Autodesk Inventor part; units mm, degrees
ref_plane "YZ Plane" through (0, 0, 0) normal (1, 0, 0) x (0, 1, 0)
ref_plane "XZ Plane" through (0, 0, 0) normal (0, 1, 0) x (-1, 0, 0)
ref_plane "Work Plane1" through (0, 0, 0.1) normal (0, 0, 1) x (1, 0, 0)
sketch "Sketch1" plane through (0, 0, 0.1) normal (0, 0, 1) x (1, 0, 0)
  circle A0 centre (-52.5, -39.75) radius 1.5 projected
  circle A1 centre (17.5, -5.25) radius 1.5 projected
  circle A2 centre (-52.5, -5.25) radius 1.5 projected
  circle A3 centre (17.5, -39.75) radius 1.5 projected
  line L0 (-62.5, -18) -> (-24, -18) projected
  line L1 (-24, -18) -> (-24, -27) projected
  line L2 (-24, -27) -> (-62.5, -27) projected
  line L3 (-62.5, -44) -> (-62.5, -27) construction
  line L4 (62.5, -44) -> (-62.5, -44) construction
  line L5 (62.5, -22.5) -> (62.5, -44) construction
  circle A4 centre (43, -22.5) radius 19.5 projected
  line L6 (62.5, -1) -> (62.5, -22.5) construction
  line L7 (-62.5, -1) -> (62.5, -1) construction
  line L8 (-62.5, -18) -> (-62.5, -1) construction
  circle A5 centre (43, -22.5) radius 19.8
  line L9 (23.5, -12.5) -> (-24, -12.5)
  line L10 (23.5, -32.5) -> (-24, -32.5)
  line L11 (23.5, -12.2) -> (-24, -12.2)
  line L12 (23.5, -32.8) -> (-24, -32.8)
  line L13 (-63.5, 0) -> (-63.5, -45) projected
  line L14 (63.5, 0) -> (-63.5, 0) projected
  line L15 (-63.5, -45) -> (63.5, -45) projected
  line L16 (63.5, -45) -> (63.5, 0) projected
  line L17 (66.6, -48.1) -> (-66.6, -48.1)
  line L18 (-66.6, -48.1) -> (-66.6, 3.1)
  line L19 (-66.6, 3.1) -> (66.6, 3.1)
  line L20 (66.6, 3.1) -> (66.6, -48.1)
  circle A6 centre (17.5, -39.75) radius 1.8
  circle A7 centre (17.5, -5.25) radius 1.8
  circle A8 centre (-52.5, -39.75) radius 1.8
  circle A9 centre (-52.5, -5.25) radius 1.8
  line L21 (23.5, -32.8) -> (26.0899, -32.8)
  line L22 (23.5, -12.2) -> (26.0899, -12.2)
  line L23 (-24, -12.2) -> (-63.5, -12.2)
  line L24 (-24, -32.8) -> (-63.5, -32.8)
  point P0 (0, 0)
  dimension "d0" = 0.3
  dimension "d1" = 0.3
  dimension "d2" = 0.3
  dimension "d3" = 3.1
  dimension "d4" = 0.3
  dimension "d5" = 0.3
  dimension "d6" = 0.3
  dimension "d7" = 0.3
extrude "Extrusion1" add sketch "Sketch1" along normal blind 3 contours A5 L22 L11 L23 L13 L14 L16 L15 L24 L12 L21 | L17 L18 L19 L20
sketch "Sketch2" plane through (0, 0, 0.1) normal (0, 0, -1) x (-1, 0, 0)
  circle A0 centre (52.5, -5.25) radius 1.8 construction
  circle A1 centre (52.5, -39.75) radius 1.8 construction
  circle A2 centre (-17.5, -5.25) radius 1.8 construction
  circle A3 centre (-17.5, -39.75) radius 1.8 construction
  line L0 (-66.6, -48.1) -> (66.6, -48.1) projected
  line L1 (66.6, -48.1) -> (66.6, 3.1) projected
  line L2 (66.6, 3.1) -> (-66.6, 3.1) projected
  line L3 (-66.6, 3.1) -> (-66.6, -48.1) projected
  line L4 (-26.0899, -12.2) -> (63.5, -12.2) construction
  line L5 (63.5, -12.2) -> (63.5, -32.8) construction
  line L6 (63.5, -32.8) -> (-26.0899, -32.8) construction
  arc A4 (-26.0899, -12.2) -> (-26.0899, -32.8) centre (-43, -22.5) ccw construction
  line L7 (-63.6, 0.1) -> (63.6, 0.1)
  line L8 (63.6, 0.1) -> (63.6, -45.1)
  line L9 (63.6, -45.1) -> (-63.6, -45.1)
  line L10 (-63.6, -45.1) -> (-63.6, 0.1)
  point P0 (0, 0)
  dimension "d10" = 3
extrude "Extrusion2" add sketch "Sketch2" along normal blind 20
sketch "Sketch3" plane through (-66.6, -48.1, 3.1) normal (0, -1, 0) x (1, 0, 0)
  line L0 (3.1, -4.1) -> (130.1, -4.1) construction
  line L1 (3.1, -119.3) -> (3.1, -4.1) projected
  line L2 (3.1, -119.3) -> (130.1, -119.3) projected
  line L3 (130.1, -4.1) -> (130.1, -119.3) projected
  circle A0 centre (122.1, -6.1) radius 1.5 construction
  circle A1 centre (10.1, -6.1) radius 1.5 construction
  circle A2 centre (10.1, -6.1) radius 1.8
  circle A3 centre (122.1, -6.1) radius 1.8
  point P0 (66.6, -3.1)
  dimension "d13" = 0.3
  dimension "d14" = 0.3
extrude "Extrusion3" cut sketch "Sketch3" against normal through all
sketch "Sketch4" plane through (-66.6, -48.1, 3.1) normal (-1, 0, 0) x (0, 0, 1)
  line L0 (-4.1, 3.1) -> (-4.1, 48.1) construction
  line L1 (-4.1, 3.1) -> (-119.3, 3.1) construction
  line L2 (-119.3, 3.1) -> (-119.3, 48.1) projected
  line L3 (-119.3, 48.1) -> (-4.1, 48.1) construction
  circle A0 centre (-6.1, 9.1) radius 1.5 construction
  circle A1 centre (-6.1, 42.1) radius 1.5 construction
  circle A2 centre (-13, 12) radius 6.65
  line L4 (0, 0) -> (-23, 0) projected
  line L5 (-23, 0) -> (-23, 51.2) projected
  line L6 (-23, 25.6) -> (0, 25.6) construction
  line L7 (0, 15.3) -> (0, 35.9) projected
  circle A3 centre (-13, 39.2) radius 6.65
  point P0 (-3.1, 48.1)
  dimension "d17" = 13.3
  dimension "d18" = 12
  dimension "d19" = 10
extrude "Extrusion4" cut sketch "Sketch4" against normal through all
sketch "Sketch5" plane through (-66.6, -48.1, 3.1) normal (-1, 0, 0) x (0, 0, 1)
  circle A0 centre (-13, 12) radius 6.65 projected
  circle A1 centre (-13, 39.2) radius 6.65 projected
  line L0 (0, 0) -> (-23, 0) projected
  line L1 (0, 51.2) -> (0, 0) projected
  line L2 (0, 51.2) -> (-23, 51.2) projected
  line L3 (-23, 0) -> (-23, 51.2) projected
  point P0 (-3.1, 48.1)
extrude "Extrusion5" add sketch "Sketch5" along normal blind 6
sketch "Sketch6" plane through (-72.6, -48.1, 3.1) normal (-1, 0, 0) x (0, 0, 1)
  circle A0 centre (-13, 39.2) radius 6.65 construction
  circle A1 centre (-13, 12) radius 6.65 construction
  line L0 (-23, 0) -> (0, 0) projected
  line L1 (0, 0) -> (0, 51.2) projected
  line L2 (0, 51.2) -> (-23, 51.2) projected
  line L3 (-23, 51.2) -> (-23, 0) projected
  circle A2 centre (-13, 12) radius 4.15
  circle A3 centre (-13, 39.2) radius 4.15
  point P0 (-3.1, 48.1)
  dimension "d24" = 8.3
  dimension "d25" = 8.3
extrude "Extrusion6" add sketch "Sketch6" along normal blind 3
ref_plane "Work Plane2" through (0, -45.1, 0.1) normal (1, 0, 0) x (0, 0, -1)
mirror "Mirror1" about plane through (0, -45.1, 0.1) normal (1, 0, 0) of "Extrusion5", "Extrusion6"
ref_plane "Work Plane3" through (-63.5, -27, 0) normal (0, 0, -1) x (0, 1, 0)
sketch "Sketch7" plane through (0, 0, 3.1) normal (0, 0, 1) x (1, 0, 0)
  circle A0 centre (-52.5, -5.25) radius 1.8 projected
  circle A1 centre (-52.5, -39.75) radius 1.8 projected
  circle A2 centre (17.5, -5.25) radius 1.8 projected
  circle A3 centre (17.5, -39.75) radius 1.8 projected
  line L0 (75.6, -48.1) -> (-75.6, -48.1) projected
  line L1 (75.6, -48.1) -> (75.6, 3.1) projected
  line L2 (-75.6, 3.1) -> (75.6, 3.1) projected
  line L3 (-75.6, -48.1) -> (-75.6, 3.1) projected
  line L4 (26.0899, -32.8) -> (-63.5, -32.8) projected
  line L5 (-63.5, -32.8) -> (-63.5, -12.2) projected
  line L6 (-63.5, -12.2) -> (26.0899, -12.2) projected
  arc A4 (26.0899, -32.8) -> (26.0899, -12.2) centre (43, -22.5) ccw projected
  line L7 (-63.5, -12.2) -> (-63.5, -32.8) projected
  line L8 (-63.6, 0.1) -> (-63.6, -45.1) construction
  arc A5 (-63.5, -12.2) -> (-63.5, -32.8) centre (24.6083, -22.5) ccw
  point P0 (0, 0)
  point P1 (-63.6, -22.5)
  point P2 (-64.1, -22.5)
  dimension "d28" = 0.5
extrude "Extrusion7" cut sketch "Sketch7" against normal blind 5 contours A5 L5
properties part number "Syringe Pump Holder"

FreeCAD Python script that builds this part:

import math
import FreeCAD as App
import Part
import Sketcher
from FreeCAD import Vector

doc = App.newDocument("Part")
body = doc.addObject("PartDesign::Body", "Body")

sketch1 = body.newObject("Sketcher::SketchObject", "Sketch")
sketch1.AttachmentSupport = (doc.getObject("XY_Plane"), [""])
sketch1.MapMode = "FlatFace"
sketch1.AttachmentOffset = App.Placement(Vector(0, 0, 0.1), App.Rotation())
sketch1.addGeometry(Part.LineSegment(Vector(-66.6, -48.1, 0), Vector(66.6, -48.1, 0)), False)
sketch1.addGeometry(Part.LineSegment(Vector(66.6, -48.1, 0), Vector(66.6, 3.1, 0)), False)
sketch1.addGeometry(Part.LineSegment(Vector(66.6, 3.1, 0), Vector(-66.6, 3.1, 0)), False)
sketch1.addGeometry(Part.LineSegment(Vector(-66.6, 3.1, 0), Vector(-66.6, -48.1, 0)), False)
sketch1.addGeometry(Part.ArcOfCircle(Part.Circle(Vector(43, -22.5, 0), Vector(0, 0, 1), 19.8), math.radians(-148.654262), math.radians(148.654262)), False)
sketch1.addGeometry(Part.LineSegment(Vector(26.0899, -32.8, 0), Vector(-63.5, -32.8, 0)), False)
sketch1.addGeometry(Part.LineSegment(Vector(-63.5, -32.8, 0), Vector(-63.5, -12.2, 0)), False)
sketch1.addGeometry(Part.LineSegment(Vector(-63.5, -12.2, 0), Vector(26.0899, -12.2, 0)), False)
sketch1.addGeometry(Part.Circle(Vector(-52.5, -39.75, 0), Vector(0, 0, 1), 1.8), False)
sketch1.addGeometry(Part.Circle(Vector(17.5, -39.75, 0), Vector(0, 0, 1), 1.8), False)
sketch1.addGeometry(Part.Circle(Vector(-52.5, -5.25, 0), Vector(0, 0, 1), 1.8), False)
sketch1.addGeometry(Part.Circle(Vector(17.5, -5.25, 0), Vector(0, 0, 1), 1.8), False)
sketch1.addConstraint(Sketcher.Constraint("Coincident", 0, 2, 1, 1))
sketch1.addConstraint(Sketcher.Constraint("Coincident", 1, 2, 2, 1))
sketch1.addConstraint(Sketcher.Constraint("Coincident", 2, 2, 3, 1))
sketch1.addConstraint(Sketcher.Constraint("Coincident", 3, 2, 0, 1))
sketch1.addConstraint(Sketcher.Constraint("Coincident", 4, 1, 5, 1))
sketch1.addConstraint(Sketcher.Constraint("Coincident", 5, 2, 6, 1))
sketch1.addConstraint(Sketcher.Constraint("Coincident", 6, 2, 7, 1))
sketch1.addConstraint(Sketcher.Constraint("Coincident", 7, 2, 4, 2))
sketch1.addConstraint(Sketcher.Constraint("Horizontal", 0))
sketch1.addConstraint(Sketcher.Constraint("Vertical", 1))
sketch1.addConstraint(Sketcher.Constraint("Horizontal", 2))
sketch1.addConstraint(Sketcher.Constraint("Vertical", 3))
sketch1.addConstraint(Sketcher.Constraint("Horizontal", 5))
sketch1.addConstraint(Sketcher.Constraint("Vertical", 6))
sketch1.addConstraint(Sketcher.Constraint("Horizontal", 7))
sketch1.addConstraint(Sketcher.Constraint("Equal", 8, 9))
sketch1.addConstraint(Sketcher.Constraint("Equal", 9, 10))
sketch1.addConstraint(Sketcher.Constraint("Equal", 10, 11))
sketch1.addConstraint(Sketcher.Constraint("Horizontal", 8, 3, 9, 3))
sketch1.addConstraint(Sketcher.Constraint("Horizontal", 10, 3, 11, 3))
sketch1.addConstraint(Sketcher.Constraint("Vertical", 8, 3, 10, 3))
sketch1.addConstraint(Sketcher.Constraint("Vertical", 9, 3, 11, 3))
sketch1.addConstraint(Sketcher.Constraint("Vertical", 4, 1, 7, 2))
sketch1.addConstraint(Sketcher.Constraint("Diameter", 8, 3.6))
sketch1.addConstraint(Sketcher.Constraint("DistanceY", -1, 1, 1, 2, 3.1))
sketch1.addConstraint(Sketcher.Constraint("Radius", 4, 19.8))
sketch1.addConstraint(Sketcher.Constraint("DistanceX", 3, 2, 5, 2, 3.1))
sketch1.addConstraint(Sketcher.Constraint("DistanceX", 0, 1, 0, 2, 133.2))
sketch1.addConstraint(Sketcher.Constraint("DistanceY", 1, 1, 1, 2, 51.2))
sketch1.addConstraint(Sketcher.Constraint("DistanceY", 6, 1, 6, 2, 20.6))
sketch1.addConstraint(Sketcher.Constraint("DistanceX", -1, 1, 4, 3, 43.0))
sketch1.addConstraint(Sketcher.Constraint("DistanceX", 8, 3, 9, 3, 70.0))
sketch1.addConstraint(Sketcher.Constraint("DistanceX", 5, 2, 8, 3, 11.0))
sketch1.addConstraint(Sketcher.Constraint("DistanceX", 5, 2, 5, 1, 89.59))
sketch1.addConstraint(Sketcher.Constraint("DistanceY", 4, 3, -1, 1, 22.5))
sketch1.addConstraint(Sketcher.Constraint("DistanceY", 8, 3, 10, 3, 34.5))
sketch1.addConstraint(Sketcher.Constraint("DistanceY", 8, 3, -1, 1, 39.75))
pad1 = body.newObject("PartDesign::Pad", "Pad")
pad1.Profile = sketch1
pad1.Length = 3

sketch2 = body.newObject("Sketcher::SketchObject", "Sketch001")
sketch2.AttachmentSupport = (doc.getObject("XY_Plane"), [""])
sketch2.MapMode = "FlatFace"
sketch2.AttachmentOffset = App.Placement(Vector(0, 0, 0.1), App.Rotation())
sketch2.addGeometry(Part.LineSegment(Vector(66.6, 3.1, 0), Vector(66.6, -48.1, 0)), False)
sketch2.addGeometry(Part.LineSegment(Vector(66.6, -48.1, 0), Vector(-66.6, -48.1, 0)), False)
sketch2.addGeometry(Part.LineSegment(Vector(-66.6, -48.1, 0), Vector(-66.6, 3.1, 0)), False)
sketch2.addGeometry(Part.LineSegment(Vector(-66.6, 3.1, 0), Vector(66.6, 3.1, 0)), False)
sketch2.addGeometry(Part.LineSegment(Vector(63.6, -45.1, 0), Vector(63.6, 0.1, 0)), False)
sketch2.addGeometry(Part.LineSegment(Vector(63.6, 0.1, 0), Vector(-63.6, 0.1, 0)), False)
sketch2.addGeometry(Part.LineSegment(Vector(-63.6, 0.1, 0), Vector(-63.6, -45.1, 0)), False)
sketch2.addGeometry(Part.LineSegment(Vector(-63.6, -45.1, 0), Vector(63.6, -45.1, 0)), False)
sketch2.addConstraint(Sketcher.Constraint("Coincident", 0, 2, 1, 1))
sketch2.addConstraint(Sketcher.Constraint("Coincident", 1, 2, 2, 1))
sketch2.addConstraint(Sketcher.Constraint("Coincident", 2, 2, 3, 1))
sketch2.addConstraint(Sketcher.Constraint("Coincident", 3, 2, 0, 1))
sketch2.addConstraint(Sketcher.Constraint("Coincident", 4, 2, 5, 1))
sketch2.addConstraint(Sketcher.Constraint("Coincident", 5, 2, 6, 1))
sketch2.addConstraint(Sketcher.Constraint("Coincident", 6, 2, 7, 1))
sketch2.addConstraint(Sketcher.Constraint("Coincident", 7, 2, 4, 1))
sketch2.addConstraint(Sketcher.Constraint("Vertical", 0))
sketch2.addConstraint(Sketcher.Constraint("Horizontal", 1))
sketch2.addConstraint(Sketcher.Constraint("Vertical", 2))
sketch2.addConstraint(Sketcher.Constraint("Horizontal", 3))
sketch2.addConstraint(Sketcher.Constraint("Vertical", 4))
sketch2.addConstraint(Sketcher.Constraint("Horizontal", 5))
sketch2.addConstraint(Sketcher.Constraint("Vertical", 6))
sketch2.addConstraint(Sketcher.Constraint("Horizontal", 7))
sketch2.addConstraint(Sketcher.Constraint("DistanceX", 4, 2, 3, 2, 3.0))
sketch2.addConstraint(Sketcher.Constraint("DistanceY", 4, 2, 3, 2, 3.0))
sketch2.addConstraint(Sketcher.Constraint("DistanceX", 2, 2, 5, 2, 3.0))
sketch2.addConstraint(Sketcher.Constraint("DistanceY", 1, 2, 6, 2, 3.0))
sketch2.addConstraint(Sketcher.Constraint("DistanceX", 1, 2, 1, 1, 133.2))
sketch2.addConstraint(Sketcher.Constraint("DistanceY", 0, 2, 0, 1, 51.2))
sketch2.addConstraint(Sketcher.Constraint("DistanceX", -1, 1, 0, 2, 66.6))
sketch2.addConstraint(Sketcher.Constraint("DistanceY", 0, 2, -1, 1, 48.1))
pad2 = body.newObject("PartDesign::Pad", "Pad001")
pad2.Profile = sketch2
pad2.Length = 20
pad2.Reversed = True

sketch3 = body.newObject("Sketcher::SketchObject", "Sketch002")
sketch3.AttachmentSupport = (doc.getObject("XZ_Plane"), [""])
sketch3.MapMode = "FlatFace"
sketch3.AttachmentOffset = App.Placement(Vector(0, 0, 48.1), App.Rotation())
sketch3.addGeometry(Part.Circle(Vector(-56.5, -3, 0), Vector(0, 0, 1), 1.8), False)
sketch3.addGeometry(Part.Circle(Vector(55.5, -3, 0), Vector(0, 0, 1), 1.8), False)
sketch3.addConstraint(Sketcher.Constraint("Equal", 0, 1))
sketch3.addConstraint(Sketcher.Constraint("Horizontal", 0, 3, 1, 3))
sketch3.addConstraint(Sketcher.Constraint("Diameter", 0, 3.6))
sketch3.addConstraint(Sketcher.Constraint("DistanceY", 0, 3, -1, 1, 3.0))
sketch3.addConstraint(Sketcher.Constraint("DistanceX", 0, 3, 1, 3, 112.0))
sketch3.addConstraint(Sketcher.Constraint("DistanceX", 0, 3, -1, 1, 56.5))
pocket1 = body.newObject("PartDesign::Pocket", "Pocket")
pocket1.Profile = sketch3
pocket1.Type = "ThroughAll"

sketch4 = body.newObject("Sketcher::SketchObject", "Sketch003")
sketch4.AttachmentSupport = (doc.getObject("YZ_Plane"), [""])
sketch4.MapMode = "FlatFace"
sketch4.AttachmentOffset = App.Placement(Vector(0, 0, -66.6), App.Rotation())
sketch4.addGeometry(Part.Circle(Vector(-36.1, -9.9, 0), Vector(0, 0, 1), 6.65), False)
sketch4.addGeometry(Part.Circle(Vector(-8.9, -9.9, 0), Vector(0, 0, 1), 6.65), False)
sketch4.addConstraint(Sketcher.Constraint("Equal", 0, 1))
sketch4.addConstraint(Sketcher.Constraint("Horizontal", 0, 3, 1, 3))
sketch4.addConstraint(Sketcher.Constraint("Diameter", 0, 13.3))
sketch4.addConstraint(Sketcher.Constraint("DistanceX", 0, 3, -1, 1, 36.1))
sketch4.addConstraint(Sketcher.Constraint("DistanceY", 0, 3, -1, 1, 9.9))
sketch4.addConstraint(Sketcher.Constraint("DistanceX", 1, 3, -1, 1, 8.9))
pocket2 = body.newObject("PartDesign::Pocket", "Pocket001")
pocket2.Profile = sketch4
pocket2.Type = "ThroughAll"
pocket2.Reversed = True

sketch5 = body.newObject("Sketcher::SketchObject", "Sketch004")
sketch5.AttachmentSupport = (doc.getObject("YZ_Plane"), [""])
sketch5.MapMode = "FlatFace"
sketch5.AttachmentOffset = App.Placement(Vector(0, 0, -66.6), App.Rotation())
sketch5.addGeometry(Part.LineSegment(Vector(-48.1, -19.9, 0), Vector(-48.1, 3.1, 0)), False)
sketch5.addGeometry(Part.LineSegment(Vector(-48.1, 3.1, 0), Vector(3.1, 3.1, 0)), False)
sketch5.addGeometry(Part.LineSegment(Vector(3.1, 3.1, 0), Vector(3.1, -19.9, 0)), False)
sketch5.addGeometry(Part.LineSegment(Vector(3.1, -19.9, 0), Vector(-48.1, -19.9, 0)), False)
sketch5.addGeometry(Part.Circle(Vector(-36.1, -9.9, 0), Vector(0, 0, 1), 6.65), False)
sketch5.addGeometry(Part.Circle(Vector(-8.9, -9.9, 0), Vector(0, 0, 1), 6.65), False)
sketch5.addConstraint(Sketcher.Constraint("Coincident", 0, 2, 1, 1))
sketch5.addConstraint(Sketcher.Constraint("Coincident", 1, 2, 2, 1))
sketch5.addConstraint(Sketcher.Constraint("Coincident", 2, 2, 3, 1))
sketch5.addConstraint(Sketcher.Constraint("Coincident", 3, 2, 0, 1))
sketch5.addConstraint(Sketcher.Constraint("Vertical", 0))
sketch5.addConstraint(Sketcher.Constraint("Horizontal", 1))
sketch5.addConstraint(Sketcher.Constraint("Vertical", 2))
sketch5.addConstraint(Sketcher.Constraint("Horizontal", 3))
sketch5.addConstraint(Sketcher.Constraint("Equal", 4, 5))
sketch5.addConstraint(Sketcher.Constraint("Horizontal", 4, 3, 5, 3))
sketch5.addConstraint(Sketcher.Constraint("Diameter", 4, 13.3))
sketch5.addConstraint(Sketcher.Constraint("DistanceY", 0, 1, 0, 2, 23.0))
sketch5.addConstraint(Sketcher.Constraint("DistanceX", 1, 1, 1, 2, 51.2))
sketch5.addConstraint(Sketcher.Constraint("DistanceX", 0, 2, 4, 3, 12.0))
sketch5.addConstraint(Sketcher.Constraint("DistanceY", 4, 3, 0, 2, 13.0))
sketch5.addConstraint(Sketcher.Constraint("DistanceX", 5, 3, 1, 2, 12.0))
sketch5.addConstraint(Sketcher.Constraint("DistanceX", 4, 3, -1, 1, 36.1))
sketch5.addConstraint(Sketcher.Constraint("DistanceY", 4, 3, -1, 1, 9.9))
pad3 = body.newObject("PartDesign::Pad", "Pad002")
pad3.Profile = sketch5
pad3.Length = 6
pad3.Reversed = True

sketch6 = body.newObject("Sketcher::SketchObject", "Sketch005")
sketch6.AttachmentSupport = (doc.getObject("YZ_Plane"), [""])
sketch6.MapMode = "FlatFace"
sketch6.AttachmentOffset = App.Placement(Vector(0, 0, -72.6), App.Rotation())
sketch6.addGeometry(Part.LineSegment(Vector(3.1, -19.9, 0), Vector(-48.1, -19.9, 0)), False)
sketch6.addGeometry(Part.LineSegment(Vector(-48.1, -19.9, 0), Vector(-48.1, 3.1, 0)), False)
sketch6.addGeometry(Part.LineSegment(Vector(-48.1, 3.1, 0), Vector(3.1, 3.1, 0)), False)
sketch6.addGeometry(Part.LineSegment(Vector(3.1, 3.1, 0), Vector(3.1, -19.9, 0)), False)
sketch6.addGeometry(Part.Circle(Vector(-36.1, -9.9, 0), Vector(0, 0, 1), 4.15), False)
sketch6.addGeometry(Part.Circle(Vector(-8.9, -9.9, 0), Vector(0, 0, 1), 4.15), False)
sketch6.addConstraint(Sketcher.Constraint("Coincident", 0, 2, 1, 1))
sketch6.addConstraint(Sketcher.Constraint("Coincident", 1, 2, 2, 1))
sketch6.addConstraint(Sketcher.Constraint("Coincident", 2, 2, 3, 1))
sketch6.addConstraint(Sketcher.Constraint("Coincident", 3, 2, 0, 1))
sketch6.addConstraint(Sketcher.Constraint("Horizontal", 0))
sketch6.addConstraint(Sketcher.Constraint("Vertical", 1))
sketch6.addConstraint(Sketcher.Constraint("Horizontal", 2))
sketch6.addConstraint(Sketcher.Constraint("Vertical", 3))
sketch6.addConstraint(Sketcher.Constraint("Equal", 4, 5))
sketch6.addConstraint(Sketcher.Constraint("Horizontal", 4, 3, 5, 3))
sketch6.addConstraint(Sketcher.Constraint("Diameter", 4, 8.3))
sketch6.addConstraint(Sketcher.Constraint("DistanceY", 1, 1, 1, 2, 23.0))
sketch6.addConstraint(Sketcher.Constraint("DistanceX", 0, 2, 0, 1, 51.2))
sketch6.addConstraint(Sketcher.Constraint("DistanceX", 0, 2, 4, 3, 12.0))
sketch6.addConstraint(Sketcher.Constraint("DistanceY", 0, 2, 4, 3, 10.0))
sketch6.addConstraint(Sketcher.Constraint("DistanceX", 5, 3, 2, 2, 12.0))
sketch6.addConstraint(Sketcher.Constraint("DistanceX", 4, 3, -1, 1, 36.1))
sketch6.addConstraint(Sketcher.Constraint("DistanceY", 4, 3, -1, 1, 9.9))
pad4 = body.newObject("PartDesign::Pad", "Pad003")
pad4.Profile = sketch6
pad4.Length = 3
pad4.Reversed = True
doc.recompute()

mirrored = body.newObject("PartDesign::Mirrored", "Mirrored")
mirrored.Originals = [pad3, pad4]
mirrored.MirrorPlane = (doc.getObject("YZ_Plane"), [""])
body.Tip = mirrored

sketch7 = body.newObject("Sketcher::SketchObject", "Sketch006")
sketch7.AttachmentSupport = (doc.getObject("XY_Plane"), [""])
sketch7.MapMode = "FlatFace"
sketch7.AttachmentOffset = App.Placement(Vector(0, 0, 3.1), App.Rotation())
sketch7.addGeometry(Part.ArcOfCircle(Part.Circle(Vector(24.6083, -22.5, 0), Vector(0, 0, 1), 88.7083), math.radians(173.332296), math.radians(186.667704)), False)
sketch7.addGeometry(Part.LineSegment(Vector(-63.5, -32.8, 0), Vector(-63.5, -12.2, 0)), False)
sketch7.addConstraint(Sketcher.Constraint("Coincident", 0, 1, 1, 2))
sketch7.addConstraint(Sketcher.Constraint("Coincident", 1, 1, 0, 2))
sketch7.addConstraint(Sketcher.Constraint("Vertical", 1))
sketch7.addConstraint(Sketcher.Constraint("DistanceY", 1, 1, 1, 2, 20.6))
sketch7.addConstraint(Sketcher.Constraint("DistanceY", 0, 3, -1, 1, 22.5))
sketch7.addConstraint(Sketcher.Constraint("DistanceX", 0, 1, -1, 1, 63.5))
sketch7.addConstraint(Sketcher.Constraint("Radius", 0, 88.7083))
pocket3 = body.newObject("PartDesign::Pocket", "Pocket002")
pocket3.Profile = sketch7
pocket3.Length = 5

doc.recompute()
